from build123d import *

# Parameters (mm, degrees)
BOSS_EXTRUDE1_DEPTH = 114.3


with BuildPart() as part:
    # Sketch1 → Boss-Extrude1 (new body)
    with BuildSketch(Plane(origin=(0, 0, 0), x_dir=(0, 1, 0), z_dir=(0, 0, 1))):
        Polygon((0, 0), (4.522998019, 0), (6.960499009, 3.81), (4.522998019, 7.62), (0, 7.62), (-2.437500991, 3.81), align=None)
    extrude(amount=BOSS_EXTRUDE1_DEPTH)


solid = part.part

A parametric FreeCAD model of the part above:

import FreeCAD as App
import Part
import Sketcher

V = App.Vector
Q = App.Units.Quantity


def add_polygon(sketch, points):
    """Adds a closed chain of lines whose ends are joined by coincident constraints."""
    first, n = sketch.GeometryCount, len(points)
    for a, b in zip(points, points[1:] + points[:1]):
        sketch.addGeometry(Part.LineSegment(App.Vector(*a, 0), App.Vector(*b, 0)), False)
    for i in range(n):
        sketch.addConstraint(Sketcher.Constraint("Coincident", first + i, 2, first + (i + 1) % n, 1))

doc = App.newDocument("Part")
params = doc.addObject("Spreadsheet::Sheet", "Params")
for row, (alias, value) in enumerate([
    ("pad1_length", "4.5 in"),
], start=1):
    params.set(f"A{row}", alias)
    params.set(f"B{row}", "=" + value)
    params.setAlias(f"B{row}", alias)

body = doc.addObject("PartDesign::Body", "Body")

# Sketch on XY plane
sketch1 = body.newObject("Sketcher::SketchObject", "Sketch")
sketch1.AttachmentSupport = (doc.getObject("XY_Plane"), [""])
sketch1.MapMode = "FlatFace"
add_polygon(sketch1, [(0, 0), (0, 4.522998), (-3.81, 6.960499), (-7.62, 4.522998), (-7.62, 0), (-3.81, -2.437501)])  # lines 0-5
sketch1.addConstraint([
    Sketcher.Constraint("Vertical", 0),
    Sketcher.Constraint("Vertical", 3),
    Sketcher.Constraint("Coincident", 5, 2, -1, 1),
    Sketcher.Constraint("PointOnObject", 3, 2, -1),
    Sketcher.Constraint("Parallel", 1, 4),
    Sketcher.Constraint("Parallel", 2, 5),
    Sketcher.Constraint("Horizontal", 0, 2, 2, 2),
    Sketcher.Constraint("Vertical", 1, 2, 4, 2),
    Sketcher.Constraint("DistanceX", 2, 2, -1, 1, Q("0.3 in")),
    Sketcher.Constraint("DistanceY", 4, 2, 1, 2, Q("0.37 in")),
    Sketcher.Constraint("DistanceY", 0, 1, 0, 2, 4.522998),
])
pad1 = body.newObject("PartDesign::Pad", "Pad")
pad1.Profile = sketch1
pad1.setExpression("Length", "Params.pad1_length")

doc.recompute()
